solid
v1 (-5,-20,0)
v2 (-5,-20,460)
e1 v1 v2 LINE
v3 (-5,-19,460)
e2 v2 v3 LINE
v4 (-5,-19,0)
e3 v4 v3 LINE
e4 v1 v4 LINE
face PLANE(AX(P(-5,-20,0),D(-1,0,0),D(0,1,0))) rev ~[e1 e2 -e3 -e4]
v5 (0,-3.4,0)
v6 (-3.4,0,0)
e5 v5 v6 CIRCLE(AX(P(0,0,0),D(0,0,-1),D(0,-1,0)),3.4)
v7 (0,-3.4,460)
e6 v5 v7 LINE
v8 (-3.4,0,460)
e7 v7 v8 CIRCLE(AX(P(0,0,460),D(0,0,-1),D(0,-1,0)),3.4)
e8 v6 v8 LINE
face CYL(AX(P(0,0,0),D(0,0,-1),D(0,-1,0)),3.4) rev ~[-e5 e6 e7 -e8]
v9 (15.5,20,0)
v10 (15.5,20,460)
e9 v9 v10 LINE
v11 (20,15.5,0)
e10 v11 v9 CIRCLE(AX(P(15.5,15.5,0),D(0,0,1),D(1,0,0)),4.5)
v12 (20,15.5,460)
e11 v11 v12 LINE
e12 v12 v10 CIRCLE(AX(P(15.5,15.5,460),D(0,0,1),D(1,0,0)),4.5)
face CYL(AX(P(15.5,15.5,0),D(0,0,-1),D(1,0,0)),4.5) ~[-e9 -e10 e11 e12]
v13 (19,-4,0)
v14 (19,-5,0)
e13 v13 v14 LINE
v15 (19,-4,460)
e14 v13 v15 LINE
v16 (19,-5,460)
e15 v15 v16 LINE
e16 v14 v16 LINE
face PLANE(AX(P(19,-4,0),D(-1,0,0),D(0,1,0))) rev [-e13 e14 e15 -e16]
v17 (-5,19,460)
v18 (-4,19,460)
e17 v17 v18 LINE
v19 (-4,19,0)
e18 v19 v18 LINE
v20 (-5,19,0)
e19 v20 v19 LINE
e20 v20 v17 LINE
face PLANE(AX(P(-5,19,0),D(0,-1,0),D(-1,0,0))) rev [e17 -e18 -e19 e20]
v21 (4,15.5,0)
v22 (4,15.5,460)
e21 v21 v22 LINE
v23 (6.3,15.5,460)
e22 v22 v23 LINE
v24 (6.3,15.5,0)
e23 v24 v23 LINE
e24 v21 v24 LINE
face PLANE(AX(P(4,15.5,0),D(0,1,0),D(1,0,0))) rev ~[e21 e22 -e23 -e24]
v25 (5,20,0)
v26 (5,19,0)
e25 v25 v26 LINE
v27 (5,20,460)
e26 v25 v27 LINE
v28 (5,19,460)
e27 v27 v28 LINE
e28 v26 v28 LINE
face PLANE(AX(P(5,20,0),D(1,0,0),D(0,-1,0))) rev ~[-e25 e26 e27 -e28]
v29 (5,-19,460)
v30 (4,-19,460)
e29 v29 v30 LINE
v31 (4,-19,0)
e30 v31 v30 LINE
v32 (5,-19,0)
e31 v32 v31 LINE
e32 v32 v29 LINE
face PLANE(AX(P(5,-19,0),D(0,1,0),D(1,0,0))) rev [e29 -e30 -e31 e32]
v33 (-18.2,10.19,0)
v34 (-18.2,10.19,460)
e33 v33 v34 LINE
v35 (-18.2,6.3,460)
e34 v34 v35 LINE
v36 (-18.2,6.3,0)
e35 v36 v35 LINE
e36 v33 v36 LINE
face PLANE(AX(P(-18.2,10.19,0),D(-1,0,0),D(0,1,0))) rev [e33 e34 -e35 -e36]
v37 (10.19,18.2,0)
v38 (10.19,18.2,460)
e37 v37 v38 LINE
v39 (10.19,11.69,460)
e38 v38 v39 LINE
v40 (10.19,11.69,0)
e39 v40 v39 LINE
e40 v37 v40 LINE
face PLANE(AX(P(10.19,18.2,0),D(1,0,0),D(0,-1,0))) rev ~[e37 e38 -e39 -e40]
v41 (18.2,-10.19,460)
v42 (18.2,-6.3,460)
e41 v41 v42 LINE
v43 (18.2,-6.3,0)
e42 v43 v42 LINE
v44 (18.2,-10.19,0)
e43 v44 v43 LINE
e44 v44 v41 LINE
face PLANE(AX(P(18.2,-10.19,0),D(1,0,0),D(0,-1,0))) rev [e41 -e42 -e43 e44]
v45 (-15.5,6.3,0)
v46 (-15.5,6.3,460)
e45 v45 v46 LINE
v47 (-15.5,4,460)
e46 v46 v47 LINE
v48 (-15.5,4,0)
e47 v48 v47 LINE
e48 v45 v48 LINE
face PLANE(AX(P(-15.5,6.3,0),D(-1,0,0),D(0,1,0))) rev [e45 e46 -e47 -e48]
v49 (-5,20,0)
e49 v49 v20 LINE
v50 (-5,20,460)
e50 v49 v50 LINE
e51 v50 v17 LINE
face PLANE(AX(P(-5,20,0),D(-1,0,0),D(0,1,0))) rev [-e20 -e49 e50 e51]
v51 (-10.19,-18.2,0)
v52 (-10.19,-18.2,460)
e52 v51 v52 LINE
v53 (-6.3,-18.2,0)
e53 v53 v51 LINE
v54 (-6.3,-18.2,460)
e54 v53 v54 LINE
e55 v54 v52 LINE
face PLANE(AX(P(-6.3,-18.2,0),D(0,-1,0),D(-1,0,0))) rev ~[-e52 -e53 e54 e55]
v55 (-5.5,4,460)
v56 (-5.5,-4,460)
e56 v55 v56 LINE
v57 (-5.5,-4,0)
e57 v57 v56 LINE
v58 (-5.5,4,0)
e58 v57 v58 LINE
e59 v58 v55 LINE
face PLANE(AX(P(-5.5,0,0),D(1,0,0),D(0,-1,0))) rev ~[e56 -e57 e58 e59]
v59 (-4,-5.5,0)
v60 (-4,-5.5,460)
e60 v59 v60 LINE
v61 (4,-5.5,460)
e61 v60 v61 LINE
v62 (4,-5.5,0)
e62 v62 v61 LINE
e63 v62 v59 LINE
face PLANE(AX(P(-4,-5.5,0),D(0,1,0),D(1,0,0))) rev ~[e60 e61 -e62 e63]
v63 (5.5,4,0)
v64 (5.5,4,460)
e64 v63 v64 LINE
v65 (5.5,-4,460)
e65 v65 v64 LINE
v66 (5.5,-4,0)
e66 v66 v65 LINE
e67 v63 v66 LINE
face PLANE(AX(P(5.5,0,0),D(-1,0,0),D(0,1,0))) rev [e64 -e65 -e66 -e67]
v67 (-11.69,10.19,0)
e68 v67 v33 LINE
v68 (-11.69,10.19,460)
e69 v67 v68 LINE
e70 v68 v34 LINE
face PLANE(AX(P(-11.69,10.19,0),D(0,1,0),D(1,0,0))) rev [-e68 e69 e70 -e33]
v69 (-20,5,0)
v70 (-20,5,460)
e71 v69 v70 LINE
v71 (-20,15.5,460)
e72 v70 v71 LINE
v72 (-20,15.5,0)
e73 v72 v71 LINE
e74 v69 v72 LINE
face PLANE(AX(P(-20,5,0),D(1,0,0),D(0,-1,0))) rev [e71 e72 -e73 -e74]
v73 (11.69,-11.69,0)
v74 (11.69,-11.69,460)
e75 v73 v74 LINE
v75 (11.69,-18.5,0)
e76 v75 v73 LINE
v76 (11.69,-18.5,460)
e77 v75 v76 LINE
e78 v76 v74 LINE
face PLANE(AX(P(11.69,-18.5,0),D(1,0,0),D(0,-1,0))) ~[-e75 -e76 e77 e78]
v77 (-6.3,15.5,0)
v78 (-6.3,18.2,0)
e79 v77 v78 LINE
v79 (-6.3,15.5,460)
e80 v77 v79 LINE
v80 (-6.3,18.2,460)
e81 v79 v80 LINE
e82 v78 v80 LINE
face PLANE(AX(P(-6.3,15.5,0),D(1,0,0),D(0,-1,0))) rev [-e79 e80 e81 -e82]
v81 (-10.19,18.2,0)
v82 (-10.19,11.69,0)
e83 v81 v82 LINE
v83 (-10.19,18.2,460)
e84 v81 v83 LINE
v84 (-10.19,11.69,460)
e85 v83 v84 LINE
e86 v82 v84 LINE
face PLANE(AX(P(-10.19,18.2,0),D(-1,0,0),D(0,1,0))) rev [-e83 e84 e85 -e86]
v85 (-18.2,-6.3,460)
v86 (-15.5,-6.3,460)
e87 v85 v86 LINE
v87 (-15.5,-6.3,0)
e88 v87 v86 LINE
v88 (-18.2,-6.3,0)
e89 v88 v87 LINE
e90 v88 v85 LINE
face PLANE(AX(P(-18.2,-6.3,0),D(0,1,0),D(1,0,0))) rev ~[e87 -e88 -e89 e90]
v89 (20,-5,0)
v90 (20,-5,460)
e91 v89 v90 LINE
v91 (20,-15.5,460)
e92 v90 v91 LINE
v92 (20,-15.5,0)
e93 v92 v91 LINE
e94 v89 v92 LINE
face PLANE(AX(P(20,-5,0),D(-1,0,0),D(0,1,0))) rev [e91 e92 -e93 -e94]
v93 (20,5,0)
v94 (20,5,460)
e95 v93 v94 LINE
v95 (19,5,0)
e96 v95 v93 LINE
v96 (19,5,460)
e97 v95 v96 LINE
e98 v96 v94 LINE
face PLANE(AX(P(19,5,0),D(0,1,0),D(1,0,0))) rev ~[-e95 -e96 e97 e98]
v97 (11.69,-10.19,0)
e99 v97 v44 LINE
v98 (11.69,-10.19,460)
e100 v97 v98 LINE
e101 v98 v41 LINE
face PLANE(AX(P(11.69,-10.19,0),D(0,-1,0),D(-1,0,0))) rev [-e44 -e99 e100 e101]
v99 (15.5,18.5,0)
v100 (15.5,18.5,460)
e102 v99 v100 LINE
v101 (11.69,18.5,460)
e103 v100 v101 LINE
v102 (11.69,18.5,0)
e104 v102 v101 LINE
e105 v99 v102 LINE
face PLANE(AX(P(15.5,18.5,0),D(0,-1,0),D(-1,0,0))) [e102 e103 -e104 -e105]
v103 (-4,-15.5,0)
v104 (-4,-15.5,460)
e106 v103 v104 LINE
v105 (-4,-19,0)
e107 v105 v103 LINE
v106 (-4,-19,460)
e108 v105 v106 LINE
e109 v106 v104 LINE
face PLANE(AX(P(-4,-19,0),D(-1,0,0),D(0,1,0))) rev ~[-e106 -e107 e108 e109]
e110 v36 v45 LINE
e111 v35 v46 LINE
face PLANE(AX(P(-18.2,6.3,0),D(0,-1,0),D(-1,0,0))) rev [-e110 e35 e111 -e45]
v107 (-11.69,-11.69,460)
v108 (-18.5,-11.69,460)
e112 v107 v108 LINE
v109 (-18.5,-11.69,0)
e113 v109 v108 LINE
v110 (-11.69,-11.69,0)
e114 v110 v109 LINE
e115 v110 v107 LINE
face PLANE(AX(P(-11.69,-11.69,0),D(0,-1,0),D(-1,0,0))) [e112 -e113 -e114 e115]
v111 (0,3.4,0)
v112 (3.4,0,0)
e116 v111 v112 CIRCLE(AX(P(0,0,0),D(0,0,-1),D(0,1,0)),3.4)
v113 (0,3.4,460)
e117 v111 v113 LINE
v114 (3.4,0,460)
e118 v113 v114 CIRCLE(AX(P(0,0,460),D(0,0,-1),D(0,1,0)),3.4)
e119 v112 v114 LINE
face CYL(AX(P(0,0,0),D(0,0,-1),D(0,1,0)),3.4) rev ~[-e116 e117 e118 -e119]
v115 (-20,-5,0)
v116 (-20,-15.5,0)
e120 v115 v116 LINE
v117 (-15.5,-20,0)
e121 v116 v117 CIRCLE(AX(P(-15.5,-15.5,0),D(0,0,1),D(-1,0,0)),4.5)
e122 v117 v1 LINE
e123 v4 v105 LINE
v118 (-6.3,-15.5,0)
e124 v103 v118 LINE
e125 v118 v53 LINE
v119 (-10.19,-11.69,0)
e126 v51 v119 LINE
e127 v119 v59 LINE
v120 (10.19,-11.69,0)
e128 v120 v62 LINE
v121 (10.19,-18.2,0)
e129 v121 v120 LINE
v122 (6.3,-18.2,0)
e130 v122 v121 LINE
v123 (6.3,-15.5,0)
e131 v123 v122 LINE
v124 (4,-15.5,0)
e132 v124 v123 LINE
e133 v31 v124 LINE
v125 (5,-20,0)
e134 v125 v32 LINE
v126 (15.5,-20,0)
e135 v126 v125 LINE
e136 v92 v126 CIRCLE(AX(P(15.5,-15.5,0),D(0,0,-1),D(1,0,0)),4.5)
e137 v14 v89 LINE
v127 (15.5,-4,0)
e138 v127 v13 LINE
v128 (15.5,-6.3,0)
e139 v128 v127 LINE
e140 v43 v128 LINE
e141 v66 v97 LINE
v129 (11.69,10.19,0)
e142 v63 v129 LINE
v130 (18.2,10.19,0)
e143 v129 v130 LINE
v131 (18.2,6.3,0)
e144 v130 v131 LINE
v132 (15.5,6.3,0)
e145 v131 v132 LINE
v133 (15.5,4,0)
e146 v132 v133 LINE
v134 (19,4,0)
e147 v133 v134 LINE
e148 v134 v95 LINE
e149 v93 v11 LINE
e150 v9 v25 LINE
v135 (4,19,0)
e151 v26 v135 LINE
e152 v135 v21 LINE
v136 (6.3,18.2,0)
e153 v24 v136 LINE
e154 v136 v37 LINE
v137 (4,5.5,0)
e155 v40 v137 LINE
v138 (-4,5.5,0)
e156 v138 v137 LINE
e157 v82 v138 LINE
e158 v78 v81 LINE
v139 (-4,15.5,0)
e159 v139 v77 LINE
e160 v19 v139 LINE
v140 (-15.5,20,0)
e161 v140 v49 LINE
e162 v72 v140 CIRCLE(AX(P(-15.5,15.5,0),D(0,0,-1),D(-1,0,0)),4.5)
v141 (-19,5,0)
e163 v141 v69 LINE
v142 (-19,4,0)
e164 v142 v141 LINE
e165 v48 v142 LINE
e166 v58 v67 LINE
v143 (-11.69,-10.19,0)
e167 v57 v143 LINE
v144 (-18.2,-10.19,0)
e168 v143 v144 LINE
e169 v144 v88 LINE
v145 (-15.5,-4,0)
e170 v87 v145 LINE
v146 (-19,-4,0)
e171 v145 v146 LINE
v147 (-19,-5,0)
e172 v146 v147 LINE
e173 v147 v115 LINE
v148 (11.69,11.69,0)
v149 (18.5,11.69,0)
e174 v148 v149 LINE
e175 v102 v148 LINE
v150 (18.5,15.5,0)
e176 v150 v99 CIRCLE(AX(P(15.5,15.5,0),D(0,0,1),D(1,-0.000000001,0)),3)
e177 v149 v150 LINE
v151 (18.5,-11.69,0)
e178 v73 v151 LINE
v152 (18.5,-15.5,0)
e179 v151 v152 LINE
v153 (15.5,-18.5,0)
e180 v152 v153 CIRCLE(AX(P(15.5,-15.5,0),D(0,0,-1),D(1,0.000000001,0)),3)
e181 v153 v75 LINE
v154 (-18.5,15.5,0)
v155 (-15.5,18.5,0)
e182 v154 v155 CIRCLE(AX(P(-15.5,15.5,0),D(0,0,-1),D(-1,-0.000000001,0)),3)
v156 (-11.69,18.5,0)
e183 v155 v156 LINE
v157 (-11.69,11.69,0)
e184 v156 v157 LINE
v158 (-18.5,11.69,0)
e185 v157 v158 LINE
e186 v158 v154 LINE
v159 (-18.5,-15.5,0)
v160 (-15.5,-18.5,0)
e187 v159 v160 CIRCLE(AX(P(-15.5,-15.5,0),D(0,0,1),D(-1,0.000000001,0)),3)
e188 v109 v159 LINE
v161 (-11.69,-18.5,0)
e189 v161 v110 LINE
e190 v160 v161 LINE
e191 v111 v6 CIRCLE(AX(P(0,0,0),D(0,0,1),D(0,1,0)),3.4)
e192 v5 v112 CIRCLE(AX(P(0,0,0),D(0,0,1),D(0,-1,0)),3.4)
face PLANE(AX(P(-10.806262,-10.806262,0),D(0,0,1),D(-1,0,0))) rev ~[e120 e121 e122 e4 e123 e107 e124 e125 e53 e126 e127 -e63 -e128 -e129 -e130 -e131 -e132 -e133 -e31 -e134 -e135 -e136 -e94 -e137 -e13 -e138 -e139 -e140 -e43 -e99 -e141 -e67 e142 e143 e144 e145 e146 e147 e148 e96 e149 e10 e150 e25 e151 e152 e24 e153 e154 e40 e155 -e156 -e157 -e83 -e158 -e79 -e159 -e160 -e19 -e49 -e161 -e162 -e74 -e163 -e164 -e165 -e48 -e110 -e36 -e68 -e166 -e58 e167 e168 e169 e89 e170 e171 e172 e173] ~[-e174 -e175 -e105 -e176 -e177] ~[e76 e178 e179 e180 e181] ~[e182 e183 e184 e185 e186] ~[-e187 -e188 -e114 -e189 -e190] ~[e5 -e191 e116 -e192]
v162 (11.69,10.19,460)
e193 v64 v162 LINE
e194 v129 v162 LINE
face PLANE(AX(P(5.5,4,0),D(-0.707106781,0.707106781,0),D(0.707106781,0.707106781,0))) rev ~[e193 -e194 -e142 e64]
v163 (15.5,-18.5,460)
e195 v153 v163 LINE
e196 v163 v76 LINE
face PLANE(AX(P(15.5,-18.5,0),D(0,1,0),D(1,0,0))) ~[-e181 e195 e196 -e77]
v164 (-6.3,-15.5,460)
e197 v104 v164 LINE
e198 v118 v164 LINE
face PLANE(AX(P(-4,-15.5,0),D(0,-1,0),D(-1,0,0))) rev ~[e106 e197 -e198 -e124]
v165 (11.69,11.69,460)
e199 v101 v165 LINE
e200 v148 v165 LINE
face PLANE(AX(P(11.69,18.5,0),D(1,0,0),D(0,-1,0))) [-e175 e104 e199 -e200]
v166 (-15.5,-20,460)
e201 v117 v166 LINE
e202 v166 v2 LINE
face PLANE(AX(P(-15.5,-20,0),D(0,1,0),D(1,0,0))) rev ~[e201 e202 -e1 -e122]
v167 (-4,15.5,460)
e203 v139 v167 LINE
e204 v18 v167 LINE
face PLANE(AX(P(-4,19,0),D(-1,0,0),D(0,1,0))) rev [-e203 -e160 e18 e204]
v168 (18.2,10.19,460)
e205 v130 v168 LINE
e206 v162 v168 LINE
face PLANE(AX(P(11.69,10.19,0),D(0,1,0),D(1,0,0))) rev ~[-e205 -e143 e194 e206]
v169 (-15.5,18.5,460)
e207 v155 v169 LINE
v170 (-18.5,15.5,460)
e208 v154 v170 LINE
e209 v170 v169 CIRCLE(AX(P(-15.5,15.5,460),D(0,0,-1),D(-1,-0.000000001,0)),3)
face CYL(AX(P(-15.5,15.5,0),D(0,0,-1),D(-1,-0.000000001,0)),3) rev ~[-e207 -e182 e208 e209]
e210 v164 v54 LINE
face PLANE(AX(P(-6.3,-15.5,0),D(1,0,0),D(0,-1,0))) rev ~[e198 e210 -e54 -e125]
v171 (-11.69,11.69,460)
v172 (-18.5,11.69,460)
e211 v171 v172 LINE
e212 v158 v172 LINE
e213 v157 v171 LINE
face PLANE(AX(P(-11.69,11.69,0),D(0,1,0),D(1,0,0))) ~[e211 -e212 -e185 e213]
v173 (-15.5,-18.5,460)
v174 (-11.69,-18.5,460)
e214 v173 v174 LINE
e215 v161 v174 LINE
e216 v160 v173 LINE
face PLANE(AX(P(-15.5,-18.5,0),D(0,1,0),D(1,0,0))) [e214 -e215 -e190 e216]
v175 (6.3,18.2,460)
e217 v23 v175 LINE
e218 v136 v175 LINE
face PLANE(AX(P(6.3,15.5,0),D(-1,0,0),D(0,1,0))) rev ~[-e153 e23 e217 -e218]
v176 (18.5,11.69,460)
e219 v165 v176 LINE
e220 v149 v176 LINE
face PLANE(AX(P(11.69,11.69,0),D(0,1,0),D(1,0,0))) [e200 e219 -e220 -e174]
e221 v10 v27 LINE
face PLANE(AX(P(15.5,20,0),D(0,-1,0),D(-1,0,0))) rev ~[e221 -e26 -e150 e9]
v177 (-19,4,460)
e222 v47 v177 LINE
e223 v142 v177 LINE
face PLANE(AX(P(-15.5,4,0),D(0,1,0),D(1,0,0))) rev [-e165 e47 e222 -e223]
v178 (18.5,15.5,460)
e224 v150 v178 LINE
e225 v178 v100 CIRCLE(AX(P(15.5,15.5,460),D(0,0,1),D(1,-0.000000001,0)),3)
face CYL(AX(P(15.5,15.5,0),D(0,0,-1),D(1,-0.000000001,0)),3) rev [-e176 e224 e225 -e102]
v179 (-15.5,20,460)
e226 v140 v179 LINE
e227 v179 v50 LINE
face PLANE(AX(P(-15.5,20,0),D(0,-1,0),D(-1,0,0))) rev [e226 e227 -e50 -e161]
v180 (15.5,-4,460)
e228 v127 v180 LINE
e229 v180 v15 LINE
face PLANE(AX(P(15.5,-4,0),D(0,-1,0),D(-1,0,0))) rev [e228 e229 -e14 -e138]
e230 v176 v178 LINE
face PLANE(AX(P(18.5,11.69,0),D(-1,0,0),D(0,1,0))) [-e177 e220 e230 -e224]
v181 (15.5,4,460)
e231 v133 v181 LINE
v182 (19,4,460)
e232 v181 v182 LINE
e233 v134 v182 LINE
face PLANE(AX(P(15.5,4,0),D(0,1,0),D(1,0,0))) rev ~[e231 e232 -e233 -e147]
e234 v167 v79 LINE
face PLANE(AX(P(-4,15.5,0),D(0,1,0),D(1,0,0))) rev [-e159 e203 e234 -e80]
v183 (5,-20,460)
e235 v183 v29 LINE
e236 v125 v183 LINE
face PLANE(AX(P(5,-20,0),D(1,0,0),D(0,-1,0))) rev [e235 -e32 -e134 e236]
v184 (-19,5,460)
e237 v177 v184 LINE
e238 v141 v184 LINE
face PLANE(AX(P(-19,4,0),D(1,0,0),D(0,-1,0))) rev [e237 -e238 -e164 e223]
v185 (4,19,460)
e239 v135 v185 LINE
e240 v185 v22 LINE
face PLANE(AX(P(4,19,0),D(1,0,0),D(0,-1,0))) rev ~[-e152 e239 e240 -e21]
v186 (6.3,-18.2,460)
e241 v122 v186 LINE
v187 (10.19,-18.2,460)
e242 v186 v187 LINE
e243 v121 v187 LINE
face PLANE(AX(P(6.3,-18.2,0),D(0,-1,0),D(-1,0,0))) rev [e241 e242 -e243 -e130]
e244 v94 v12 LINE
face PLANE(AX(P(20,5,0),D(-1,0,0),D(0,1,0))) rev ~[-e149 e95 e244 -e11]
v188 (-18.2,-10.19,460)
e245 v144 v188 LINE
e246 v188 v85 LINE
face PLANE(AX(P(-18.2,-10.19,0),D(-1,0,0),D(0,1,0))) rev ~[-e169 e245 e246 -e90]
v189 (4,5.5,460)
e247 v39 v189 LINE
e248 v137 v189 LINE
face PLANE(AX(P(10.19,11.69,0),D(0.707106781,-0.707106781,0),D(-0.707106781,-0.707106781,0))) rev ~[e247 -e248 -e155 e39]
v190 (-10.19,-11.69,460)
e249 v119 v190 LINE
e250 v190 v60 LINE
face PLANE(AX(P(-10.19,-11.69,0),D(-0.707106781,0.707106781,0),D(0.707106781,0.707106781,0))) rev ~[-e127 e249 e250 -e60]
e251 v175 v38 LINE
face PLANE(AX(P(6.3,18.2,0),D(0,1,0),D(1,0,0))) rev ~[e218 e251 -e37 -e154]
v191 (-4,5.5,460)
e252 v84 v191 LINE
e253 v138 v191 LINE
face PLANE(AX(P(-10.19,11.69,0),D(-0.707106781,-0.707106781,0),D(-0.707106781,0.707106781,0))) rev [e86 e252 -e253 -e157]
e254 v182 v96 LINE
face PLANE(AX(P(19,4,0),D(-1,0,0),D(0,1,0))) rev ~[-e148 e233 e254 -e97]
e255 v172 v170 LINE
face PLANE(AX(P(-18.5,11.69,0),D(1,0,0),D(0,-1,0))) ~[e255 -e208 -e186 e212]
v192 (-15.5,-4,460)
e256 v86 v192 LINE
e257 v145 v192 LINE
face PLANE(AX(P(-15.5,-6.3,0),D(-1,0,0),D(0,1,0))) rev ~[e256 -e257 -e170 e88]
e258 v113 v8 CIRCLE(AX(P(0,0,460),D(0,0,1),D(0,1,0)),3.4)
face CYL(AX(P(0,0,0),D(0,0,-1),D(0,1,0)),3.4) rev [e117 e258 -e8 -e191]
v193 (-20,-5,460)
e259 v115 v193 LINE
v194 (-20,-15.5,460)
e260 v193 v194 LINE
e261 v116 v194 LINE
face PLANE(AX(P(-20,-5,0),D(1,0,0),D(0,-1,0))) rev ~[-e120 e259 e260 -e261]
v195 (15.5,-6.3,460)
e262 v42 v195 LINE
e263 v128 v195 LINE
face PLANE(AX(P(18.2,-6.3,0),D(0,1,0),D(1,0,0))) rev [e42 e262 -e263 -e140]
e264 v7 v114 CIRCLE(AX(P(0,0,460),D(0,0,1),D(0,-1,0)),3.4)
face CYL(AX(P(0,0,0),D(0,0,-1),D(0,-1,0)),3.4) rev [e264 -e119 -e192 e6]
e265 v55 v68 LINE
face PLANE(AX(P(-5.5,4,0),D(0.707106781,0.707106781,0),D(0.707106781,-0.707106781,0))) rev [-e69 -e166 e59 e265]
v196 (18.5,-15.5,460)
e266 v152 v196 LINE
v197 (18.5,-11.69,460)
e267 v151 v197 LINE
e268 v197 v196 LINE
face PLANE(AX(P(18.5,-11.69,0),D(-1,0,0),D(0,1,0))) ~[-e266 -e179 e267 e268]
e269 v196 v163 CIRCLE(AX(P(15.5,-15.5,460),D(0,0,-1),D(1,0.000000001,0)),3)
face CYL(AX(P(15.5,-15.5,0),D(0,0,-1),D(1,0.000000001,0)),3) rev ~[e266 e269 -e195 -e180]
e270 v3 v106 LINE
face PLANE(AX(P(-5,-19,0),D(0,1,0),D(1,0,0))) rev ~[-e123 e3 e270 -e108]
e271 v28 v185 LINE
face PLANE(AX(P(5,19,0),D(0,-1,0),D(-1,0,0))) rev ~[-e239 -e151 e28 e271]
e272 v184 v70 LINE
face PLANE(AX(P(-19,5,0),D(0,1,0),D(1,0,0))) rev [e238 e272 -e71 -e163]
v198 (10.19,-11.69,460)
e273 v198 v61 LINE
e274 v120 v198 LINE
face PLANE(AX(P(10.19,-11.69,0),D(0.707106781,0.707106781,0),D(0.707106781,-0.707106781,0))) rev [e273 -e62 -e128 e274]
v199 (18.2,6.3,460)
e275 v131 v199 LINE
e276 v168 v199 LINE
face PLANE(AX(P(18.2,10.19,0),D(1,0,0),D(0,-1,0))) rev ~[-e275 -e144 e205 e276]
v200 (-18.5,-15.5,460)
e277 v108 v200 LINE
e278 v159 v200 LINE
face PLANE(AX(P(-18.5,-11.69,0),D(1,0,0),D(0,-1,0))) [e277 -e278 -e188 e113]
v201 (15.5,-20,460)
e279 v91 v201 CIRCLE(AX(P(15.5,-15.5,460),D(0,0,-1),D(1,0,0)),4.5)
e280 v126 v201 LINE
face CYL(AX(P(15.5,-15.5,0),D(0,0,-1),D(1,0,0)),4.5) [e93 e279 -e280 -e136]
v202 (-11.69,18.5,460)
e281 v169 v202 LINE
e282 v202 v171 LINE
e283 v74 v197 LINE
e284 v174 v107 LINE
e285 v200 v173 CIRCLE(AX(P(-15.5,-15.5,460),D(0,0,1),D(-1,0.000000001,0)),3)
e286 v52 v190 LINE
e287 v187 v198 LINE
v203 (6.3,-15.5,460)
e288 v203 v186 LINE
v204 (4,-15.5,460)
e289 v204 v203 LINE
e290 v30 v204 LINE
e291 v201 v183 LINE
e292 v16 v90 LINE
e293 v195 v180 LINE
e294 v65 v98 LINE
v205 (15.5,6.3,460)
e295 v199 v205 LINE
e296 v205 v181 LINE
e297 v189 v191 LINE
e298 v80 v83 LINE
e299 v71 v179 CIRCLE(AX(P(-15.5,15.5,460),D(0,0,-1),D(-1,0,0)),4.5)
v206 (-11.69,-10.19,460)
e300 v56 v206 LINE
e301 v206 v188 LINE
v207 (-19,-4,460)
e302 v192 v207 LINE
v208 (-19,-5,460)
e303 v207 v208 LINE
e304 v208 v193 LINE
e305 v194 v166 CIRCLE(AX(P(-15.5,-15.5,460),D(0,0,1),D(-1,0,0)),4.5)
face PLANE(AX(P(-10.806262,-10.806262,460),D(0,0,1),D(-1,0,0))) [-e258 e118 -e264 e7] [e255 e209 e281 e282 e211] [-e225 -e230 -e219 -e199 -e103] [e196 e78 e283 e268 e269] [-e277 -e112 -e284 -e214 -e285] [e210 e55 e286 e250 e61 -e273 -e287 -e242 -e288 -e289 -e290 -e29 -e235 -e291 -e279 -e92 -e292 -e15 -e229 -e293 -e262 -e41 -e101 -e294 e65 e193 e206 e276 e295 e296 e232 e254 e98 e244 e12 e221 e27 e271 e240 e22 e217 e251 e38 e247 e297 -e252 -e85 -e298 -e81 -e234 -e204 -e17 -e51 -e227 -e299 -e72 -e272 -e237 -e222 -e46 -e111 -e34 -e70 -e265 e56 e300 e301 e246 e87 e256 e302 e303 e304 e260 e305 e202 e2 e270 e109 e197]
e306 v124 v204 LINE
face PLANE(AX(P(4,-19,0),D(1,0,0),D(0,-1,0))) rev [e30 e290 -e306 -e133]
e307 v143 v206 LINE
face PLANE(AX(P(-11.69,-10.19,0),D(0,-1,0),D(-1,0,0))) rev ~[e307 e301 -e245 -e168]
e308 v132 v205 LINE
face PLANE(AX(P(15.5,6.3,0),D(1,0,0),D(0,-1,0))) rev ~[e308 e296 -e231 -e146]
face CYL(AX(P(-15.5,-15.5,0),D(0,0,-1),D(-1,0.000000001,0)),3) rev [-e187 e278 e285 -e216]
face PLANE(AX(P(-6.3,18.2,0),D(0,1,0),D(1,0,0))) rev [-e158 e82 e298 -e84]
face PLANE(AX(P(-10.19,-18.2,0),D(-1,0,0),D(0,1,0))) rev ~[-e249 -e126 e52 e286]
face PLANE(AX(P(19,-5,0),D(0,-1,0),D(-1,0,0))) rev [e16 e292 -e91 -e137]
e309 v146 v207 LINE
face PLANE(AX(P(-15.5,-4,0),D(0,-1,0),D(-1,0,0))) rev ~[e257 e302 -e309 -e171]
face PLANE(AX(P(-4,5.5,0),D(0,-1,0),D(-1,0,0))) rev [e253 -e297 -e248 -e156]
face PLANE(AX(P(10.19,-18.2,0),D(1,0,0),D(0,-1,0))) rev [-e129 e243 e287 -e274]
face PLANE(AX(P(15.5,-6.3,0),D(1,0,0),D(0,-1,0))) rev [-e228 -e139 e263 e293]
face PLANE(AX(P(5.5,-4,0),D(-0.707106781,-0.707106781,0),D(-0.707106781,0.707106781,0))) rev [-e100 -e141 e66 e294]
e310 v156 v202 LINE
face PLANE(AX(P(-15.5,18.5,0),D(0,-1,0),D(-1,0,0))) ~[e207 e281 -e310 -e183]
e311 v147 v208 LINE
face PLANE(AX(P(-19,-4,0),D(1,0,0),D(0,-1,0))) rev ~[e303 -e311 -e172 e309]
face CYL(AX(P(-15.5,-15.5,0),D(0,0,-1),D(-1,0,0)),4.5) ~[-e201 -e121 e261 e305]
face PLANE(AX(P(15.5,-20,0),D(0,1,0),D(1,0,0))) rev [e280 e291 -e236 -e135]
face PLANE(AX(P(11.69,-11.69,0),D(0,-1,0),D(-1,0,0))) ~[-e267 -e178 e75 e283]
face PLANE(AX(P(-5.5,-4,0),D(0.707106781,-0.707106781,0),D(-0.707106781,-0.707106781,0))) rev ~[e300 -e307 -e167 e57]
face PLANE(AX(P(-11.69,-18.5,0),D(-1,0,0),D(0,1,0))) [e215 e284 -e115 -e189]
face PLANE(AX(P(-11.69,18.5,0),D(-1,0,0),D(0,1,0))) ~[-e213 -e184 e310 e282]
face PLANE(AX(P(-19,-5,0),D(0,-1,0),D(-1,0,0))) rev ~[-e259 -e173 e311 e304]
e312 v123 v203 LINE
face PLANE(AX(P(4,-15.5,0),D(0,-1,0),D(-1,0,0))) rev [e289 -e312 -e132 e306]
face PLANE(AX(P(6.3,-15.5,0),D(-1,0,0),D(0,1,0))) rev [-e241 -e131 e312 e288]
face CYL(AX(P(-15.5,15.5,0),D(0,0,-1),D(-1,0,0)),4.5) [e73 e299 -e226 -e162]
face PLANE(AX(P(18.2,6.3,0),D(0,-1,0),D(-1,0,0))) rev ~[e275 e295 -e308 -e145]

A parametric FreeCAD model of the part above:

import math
import FreeCAD as App
import Part
import Sketcher

V = App.Vector

doc = App.newDocument("Part")
body = doc.addObject("PartDesign::Body", "Body")

# Sketch on XY plane
sketch1 = body.newObject("Sketcher::SketchObject", "Sketch")
sketch1.AttachmentSupport = (doc.getObject("XY_Plane"), [""])
sketch1.MapMode = "FlatFace"
sketch1.addGeometry(Part.LineSegment(V(3.4, 0, 0), V(5.5, 0, 0)), False)
sketch1.addGeometry(Part.LineSegment(V(5.5, 0, 0), V(5.5, 4, 0)), False)
sketch1.addGeometry(Part.LineSegment(V(5.5, 4, 0), V(11.69, 10.19, 0)), False)
sketch1.addGeometry(Part.LineSegment(V(11.69, 10.19, 0), V(18.2, 10.19, 0)), False)
sketch1.addGeometry(Part.LineSegment(V(18.2, 10.19, 0), V(18.2, 6.3, 0)), False)
sketch1.addGeometry(Part.LineSegment(V(18.2, 6.3, 0), V(15.5, 6.3, 0)), False)
sketch1.addGeometry(Part.LineSegment(V(15.5, 6.3, 0), V(15.5, 4, 0)), False)
sketch1.addGeometry(Part.LineSegment(V(15.5, 4, 0), V(19, 4, 0)), False)
sketch1.addGeometry(Part.LineSegment(V(19, 4, 0), V(19, 5, 0)), False)
sketch1.addGeometry(Part.LineSegment(V(19, 5, 0), V(20, 5, 0)), False)
sketch1.addGeometry(Part.LineSegment(V(20, 5, 0), V(20, 15.5, 0)), False)
sketch1.addGeometry(Part.ArcOfCircle(Part.Circle(V(15.5, 15.5, 0), V(0, 0, 1), 4.5), math.radians(0), math.radians(90)), False)
sketch1.addGeometry(Part.LineSegment(V(15.5, 20, 0), V(5, 20, 0)), False)
sketch1.addGeometry(Part.LineSegment(V(5, 20, 0), V(5, 19, 0)), False)
sketch1.addGeometry(Part.LineSegment(V(5, 19, 0), V(4, 19, 0)), False)
sketch1.addGeometry(Part.LineSegment(V(4, 19, 0), V(4, 15.5, 0)), False)
sketch1.addGeometry(Part.LineSegment(V(4, 15.5, 0), V(6.3, 15.5, 0)), False)
sketch1.addGeometry(Part.LineSegment(V(6.3, 15.5, 0), V(6.3, 18.2, 0)), False)
sketch1.addGeometry(Part.LineSegment(V(6.3, 18.2, 0), V(10.19, 18.2, 0)), False)
sketch1.addGeometry(Part.LineSegment(V(10.19, 18.2, 0), V(10.19, 11.69, 0)), False)
sketch1.addGeometry(Part.LineSegment(V(10.19, 11.69, 0), V(4, 5.5, 0)), False)
sketch1.addGeometry(Part.LineSegment(V(4, 5.5, 0), V(0, 5.5, 0)), False)
sketch1.addGeometry(Part.LineSegment(V(0, 5.5, 0), V(0, 3.4, 0)), False)
sketch1.addGeometry(Part.ArcOfCircle(Part.Circle(V(0, 0, 0), V(0, 0, 1), 3.4), math.radians(0), math.radians(90)), False)
sketch1.addGeometry(Part.LineSegment(V(18.5, 15.5, 0), V(18.5, 11.69, 0)), False)
sketch1.addGeometry(Part.LineSegment(V(18.5, 11.69, 0), V(11.69, 11.69, 0)), False)
sketch1.addGeometry(Part.LineSegment(V(11.69, 11.69, 0), V(11.69, 18.5, 0)), False)
sketch1.addGeometry(Part.LineSegment(V(11.69, 18.5, 0), V(15.5, 18.5, 0)), False)
sketch1.addGeometry(Part.ArcOfCircle(Part.Circle(V(15.5, 15.5, 0), V(0, 0, 1), 3), math.radians(0), math.radians(90)), False)
sketch1.addConstraint(Sketcher.Constraint("Coincident", 0, 2, 1, 1))
sketch1.addConstraint(Sketcher.Constraint("Coincident", 1, 2, 2, 1))
sketch1.addConstraint(Sketcher.Constraint("Coincident", 2, 2, 3, 1))
sketch1.addConstraint(Sketcher.Constraint("Coincident", 3, 2, 4, 1))
sketch1.addConstraint(Sketcher.Constraint("Coincident", 4, 2, 5, 1))
sketch1.addConstraint(Sketcher.Constraint("Coincident", 5, 2, 6, 1))
sketch1.addConstraint(Sketcher.Constraint("Coincident", 6, 2, 7, 1))
sketch1.addConstraint(Sketcher.Constraint("Coincident", 7, 2, 8, 1))
sketch1.addConstraint(Sketcher.Constraint("Coincident", 8, 2, 9, 1))
sketch1.addConstraint(Sketcher.Constraint("Coincident", 9, 2, 10, 1))
sketch1.addConstraint(Sketcher.Constraint("Tangent", 10, 2, 11, 1))
sketch1.addConstraint(Sketcher.Constraint("Tangent", 11, 2, 12, 1))
sketch1.addConstraint(Sketcher.Constraint("Coincident", 12, 2, 13, 1))
sketch1.addConstraint(Sketcher.Constraint("Coincident", 13, 2, 14, 1))
sketch1.addConstraint(Sketcher.Constraint("Coincident", 14, 2, 15, 1))
sketch1.addConstraint(Sketcher.Constraint("Coincident", 15, 2, 16, 1))
sketch1.addConstraint(Sketcher.Constraint("Coincident", 16, 2, 17, 1))
sketch1.addConstraint(Sketcher.Constraint("Coincident", 17, 2, 18, 1))
sketch1.addConstraint(Sketcher.Constraint("Coincident", 18, 2, 19, 1))
sketch1.addConstraint(Sketcher.Constraint("Coincident", 19, 2, 20, 1))
sketch1.addConstraint(Sketcher.Constraint("Coincident", 20, 2, 21, 1))
sketch1.addConstraint(Sketcher.Constraint("Coincident", 21, 2, 22, 1))
sketch1.addConstraint(Sketcher.Constraint("Coincident", 22, 2, 23, 2))
sketch1.addConstraint(Sketcher.Constraint("Coincident", 23, 1, 0, 1))
sketch1.addConstraint(Sketcher.Constraint("Coincident", 24, 2, 25, 1))
sketch1.addConstraint(Sketcher.Constraint("Coincident", 25, 2, 26, 1))
sketch1.addConstraint(Sketcher.Constraint("Coincident", 26, 2, 27, 1))
sketch1.addConstraint(Sketcher.Constraint("Tangent", 27, 2, 28, 2))
sketch1.addConstraint(Sketcher.Constraint("Tangent", 28, 1, 24, 1))
sketch1.addConstraint(Sketcher.Constraint("Horizontal", 0))
sketch1.addConstraint(Sketcher.Constraint("Vertical", 1))
sketch1.addConstraint(Sketcher.Constraint("Horizontal", 3))
sketch1.addConstraint(Sketcher.Constraint("Vertical", 4))
sketch1.addConstraint(Sketcher.Constraint("Horizontal", 5))
sketch1.addConstraint(Sketcher.Constraint("Vertical", 6))
sketch1.addConstraint(Sketcher.Constraint("Horizontal", 7))
sketch1.addConstraint(Sketcher.Constraint("Vertical", 8))
sketch1.addConstraint(Sketcher.Constraint("Horizontal", 9))
sketch1.addConstraint(Sketcher.Constraint("Vertical", 10))
sketch1.addConstraint(Sketcher.Constraint("Horizontal", 12))
sketch1.addConstraint(Sketcher.Constraint("Vertical", 13))
sketch1.addConstraint(Sketcher.Constraint("Horizontal", 14))
sketch1.addConstraint(Sketcher.Constraint("Vertical", 15))
sketch1.addConstraint(Sketcher.Constraint("Horizontal", 16))
sketch1.addConstraint(Sketcher.Constraint("Vertical", 17))
sketch1.addConstraint(Sketcher.Constraint("Horizontal", 18))
sketch1.addConstraint(Sketcher.Constraint("Vertical", 19))
sketch1.addConstraint(Sketcher.Constraint("Horizontal", 21))
sketch1.addConstraint(Sketcher.Constraint("Vertical", 22))
sketch1.addConstraint(Sketcher.Constraint("Vertical", 24))
sketch1.addConstraint(Sketcher.Constraint("Horizontal", 25))
sketch1.addConstraint(Sketcher.Constraint("Vertical", 26))
sketch1.addConstraint(Sketcher.Constraint("Horizontal", 27))
sketch1.addConstraint(Sketcher.Constraint("Coincident", 23, 3, -1, 1))
sketch1.addConstraint(Sketcher.Constraint("Coincident", 28, 3, 11, 3))
sketch1.addConstraint(Sketcher.Constraint("PointOnObject", 0, 2, -1))
sketch1.addConstraint(Sketcher.Constraint("PointOnObject", 21, 2, -2))
sketch1.addConstraint(Sketcher.Constraint("Parallel", 2, 20))
sketch1.addConstraint(Sketcher.Constraint("Horizontal", 1, 2, 6, 2))
sketch1.addConstraint(Sketcher.Constraint("Horizontal", 10, 2, 15, 2))
sketch1.addConstraint(Sketcher.Constraint("Horizontal", 19, 2, 24, 2))
sketch1.addConstraint(Sketcher.Constraint("Vertical", 28, 3, 5, 2))
sketch1.addConstraint(Sketcher.Constraint("Vertical", 15, 2, 20, 2))
sketch1.addConstraint(Sketcher.Constraint("Vertical", 2, 2, 25, 2))
sketch1.addConstraint(Sketcher.Constraint("Equal", 9, 14))
sketch1.addConstraint(Sketcher.Constraint("Equal", 21, 1))
sketch1.addConstraint(Sketcher.Constraint("Equal", 18, 4))
sketch1.addConstraint(Sketcher.Constraint("Equal", 16, 6))
sketch1.addConstraint(Sketcher.Constraint("Equal", 14, 8))
sketch1.addConstraint(Sketcher.Constraint("Equal", 12, 10))
sketch1.addConstraint(Sketcher.Constraint("Equal", 8, 13))
sketch1.addConstraint(Sketcher.Constraint("Equal", 5, 17))
sketch1.addConstraint(Sketcher.Constraint("Equal", 3, 19))
sketch1.addConstraint(Sketcher.Constraint("Equal", 0, 22))
sketch1.addConstraint(Sketcher.Constraint("Radius", 28, 3.0))
sketch1.addConstraint(Sketcher.Constraint("Radius", 11, 4.5))
sketch1.addConstraint(Sketcher.Constraint("Radius", 23, 3.4))
sketch1.addConstraint(Sketcher.Constraint("DistanceX", 9, 1, 9, 2, 1.0))
sketch1.addConstraint(Sketcher.Constraint("DistanceX", 21, 2, 21, 1, 4.0))
sketch1.addConstraint(Sketcher.Constraint("DistanceX", 0, 1, 0, 2, 2.1))
sketch1.addConstraint(Sketcher.Constraint("DistanceX", 5, 2, 5, 1, 2.7))
sketch1.addConstraint(Sketcher.Constraint("DistanceX", 12, 2, 12, 1, 10.5))
sketch1.addConstraint(Sketcher.Constraint("DistanceX", 16, 1, 16, 2, 2.3))
sketch1.addConstraint(Sketcher.Constraint("DistanceX", 3, 1, 3, 2, 6.51))
pad1 = body.newObject("PartDesign::Pad", "Pad")
pad1.Profile = sketch1
pad1.Length = 460
doc.recompute()

mirrored = body.newObject("PartDesign::Mirrored", "Mirrored")
mirrored.Originals = [pad1]
mirrored.MirrorPlane = (doc.getObject("XZ_Plane"), [""])
body.Tip = mirrored
doc.recompute()

mirrored2 = body.newObject("PartDesign::Mirrored", "Mirrored001")
mirrored2.Originals = [pad1]
mirrored2.MirrorPlane = (doc.getObject("YZ_Plane"), [""])
body.Tip = mirrored2

# Sketch on XY plane
sketch2 = body.newObject("Sketcher::SketchObject", "Sketch001")
sketch2.AttachmentSupport = (doc.getObject("XY_Plane"), [""])
sketch2.MapMode = "FlatFace"
sketch2.addGeometry(Part.LineSegment(V(-3.4, 0, 0), V(-5.5, 0, 0)), False)
sketch2.addGeometry(Part.LineSegment(V(-5.5, 0, 0), V(-5.5, -4, 0)), False)
sketch2.addGeometry(Part.LineSegment(V(-5.5, -4, 0), V(-11.69, -10.19, 0)), False)
sketch2.addGeometry(Part.LineSegment(V(-11.69, -10.19, 0), V(-18.2, -10.19, 0)), False)
sketch2.addGeometry(Part.LineSegment(V(-18.2, -10.19, 0), V(-18.2, -6.3, 0)), False)
sketch2.addGeometry(Part.LineSegment(V(-18.2, -6.3, 0), V(-15.5, -6.3, 0)), False)
sketch2.addGeometry(Part.LineSegment(V(-15.5, -6.3, 0), V(-15.5, -4, 0)), False)
sketch2.addGeometry(Part.LineSegment(V(-15.5, -4, 0), V(-19, -4, 0)), False)
sketch2.addGeometry(Part.LineSegment(V(-19, -4, 0), V(-19, -5, 0)), False)
sketch2.addGeometry(Part.LineSegment(V(-19, -5, 0), V(-20, -5, 0)), False)
sketch2.addGeometry(Part.LineSegment(V(-20, -5, 0), V(-20, -15.5, 0)), False)
sketch2.addGeometry(Part.ArcOfCircle(Part.Circle(V(-15.5, -15.5, 0), V(0, 0, 1), 4.5), math.radians(-180), math.radians(-90)), False)
sketch2.addGeometry(Part.LineSegment(V(-15.5, -20, 0), V(-5, -20, 0)), False)
sketch2.addGeometry(Part.LineSegment(V(-5, -20, 0), V(-5, -19, 0)), False)
sketch2.addGeometry(Part.LineSegment(V(-5, -19, 0), V(-4, -19, 0)), False)
sketch2.addGeometry(Part.LineSegment(V(-4, -19, 0), V(-4, -15.5, 0)), False)
sketch2.addGeometry(Part.LineSegment(V(-4, -15.5, 0), V(-6.3, -15.5, 0)), False)
sketch2.addGeometry(Part.LineSegment(V(-6.3, -15.5, 0), V(-6.3, -18.2, 0)), False)
sketch2.addGeometry(Part.LineSegment(V(-6.3, -18.2, 0), V(-10.19, -18.2, 0)), False)
sketch2.addGeometry(Part.LineSegment(V(-10.19, -18.2, 0), V(-10.19, -11.69, 0)), False)
sketch2.addGeometry(Part.LineSegment(V(-10.19, -11.69, 0), V(-4, -5.5, 0)), False)
sketch2.addGeometry(Part.LineSegment(V(-4, -5.5, 0), V(0, -5.5, 0)), False)
sketch2.addGeometry(Part.LineSegment(V(0, -5.5, 0), V(0, -3.4, 0)), False)
sketch2.addGeometry(Part.ArcOfCircle(Part.Circle(V(0, 0, 0), V(0, 0, 1), 3.4), math.radians(180), math.radians(270)), False)
sketch2.addGeometry(Part.LineSegment(V(-18.5, -15.5, 0), V(-18.5, -11.69, 0)), False)
sketch2.addGeometry(Part.LineSegment(V(-18.5, -11.69, 0), V(-11.69, -11.69, 0)), False)
sketch2.addGeometry(Part.LineSegment(V(-11.69, -11.69, 0), V(-11.69, -18.5, 0)), False)
sketch2.addGeometry(Part.LineSegment(V(-11.69, -18.5, 0), V(-15.5, -18.5, 0)), False)
sketch2.addGeometry(Part.ArcOfCircle(Part.Circle(V(-15.5, -15.5, 0), V(0, 0, 1), 3), math.radians(180), math.radians(270)), False)
sketch2.addConstraint(Sketcher.Constraint("Coincident", 0, 2, 1, 1))
sketch2.addConstraint(Sketcher.Constraint("Coincident", 1, 2, 2, 1))
sketch2.addConstraint(Sketcher.Constraint("Coincident", 2, 2, 3, 1))
sketch2.addConstraint(Sketcher.Constraint("Coincident", 3, 2, 4, 1))
sketch2.addConstraint(Sketcher.Constraint("Coincident", 4, 2, 5, 1))
sketch2.addConstraint(Sketcher.Constraint("Coincident", 5, 2, 6, 1))
sketch2.addConstraint(Sketcher.Constraint("Coincident", 6, 2, 7, 1))
sketch2.addConstraint(Sketcher.Constraint("Coincident", 7, 2, 8, 1))
sketch2.addConstraint(Sketcher.Constraint("Coincident", 8, 2, 9, 1))
sketch2.addConstraint(Sketcher.Constraint("Coincident", 9, 2, 10, 1))
sketch2.addConstraint(Sketcher.Constraint("Tangent", 10, 2, 11, 1))
sketch2.addConstraint(Sketcher.Constraint("Tangent", 11, 2, 12, 1))
sketch2.addConstraint(Sketcher.Constraint("Coincident", 12, 2, 13, 1))
sketch2.addConstraint(Sketcher.Constraint("Coincident", 13, 2, 14, 1))
sketch2.addConstraint(Sketcher.Constraint("Coincident", 14, 2, 15, 1))
sketch2.addConstraint(Sketcher.Constraint("Coincident", 15, 2, 16, 1))
sketch2.addConstraint(Sketcher.Constraint("Coincident", 16, 2, 17, 1))
sketch2.addConstraint(Sketcher.Constraint("Coincident", 17, 2, 18, 1))
sketch2.addConstraint(Sketcher.Constraint("Coincident", 18, 2, 19, 1))
sketch2.addConstraint(Sketcher.Constraint("Coincident", 19, 2, 20, 1))
sketch2.addConstraint(Sketcher.Constraint("Coincident", 20, 2, 21, 1))
sketch2.addConstraint(Sketcher.Constraint("Coincident", 21, 2, 22, 1))
sketch2.addConstraint(Sketcher.Constraint("Coincident", 22, 2, 23, 2))
sketch2.addConstraint(Sketcher.Constraint("Coincident", 23, 1, 0, 1))
sketch2.addConstraint(Sketcher.Constraint("Coincident", 24, 2, 25, 1))
sketch2.addConstraint(Sketcher.Constraint("Coincident", 25, 2, 26, 1))
sketch2.addConstraint(Sketcher.Constraint("Coincident", 26, 2, 27, 1))
sketch2.addConstraint(Sketcher.Constraint("Tangent", 27, 2, 28, 2))
sketch2.addConstraint(Sketcher.Constraint("Tangent", 28, 1, 24, 1))
sketch2.addConstraint(Sketcher.Constraint("Horizontal", 0))
sketch2.addConstraint(Sketcher.Constraint("Vertical", 1))
sketch2.addConstraint(Sketcher.Constraint("Horizontal", 3))
sketch2.addConstraint(Sketcher.Constraint("Vertical", 4))
sketch2.addConstraint(Sketcher.Constraint("Horizontal", 5))
sketch2.addConstraint(Sketcher.Constraint("Vertical", 6))
sketch2.addConstraint(Sketcher.Constraint("Horizontal", 7))
sketch2.addConstraint(Sketcher.Constraint("Vertical", 8))
sketch2.addConstraint(Sketcher.Constraint("Horizontal", 9))
sketch2.addConstraint(Sketcher.Constraint("Vertical", 10))
sketch2.addConstraint(Sketcher.Constraint("Horizontal", 12))
sketch2.addConstraint(Sketcher.Constraint("Vertical", 13))
sketch2.addConstraint(Sketcher.Constraint("Horizontal", 14))
sketch2.addConstraint(Sketcher.Constraint("Vertical", 15))
sketch2.addConstraint(Sketcher.Constraint("Horizontal", 16))
sketch2.addConstraint(Sketcher.Constraint("Vertical", 17))
sketch2.addConstraint(Sketcher.Constraint("Horizontal", 18))
sketch2.addConstraint(Sketcher.Constraint("Vertical", 19))
sketch2.addConstraint(Sketcher.Constraint("Horizontal", 21))
sketch2.addConstraint(Sketcher.Constraint("Vertical", 22))
sketch2.addConstraint(Sketcher.Constraint("Vertical", 24))
sketch2.addConstraint(Sketcher.Constraint("Horizontal", 25))
sketch2.addConstraint(Sketcher.Constraint("Vertical", 26))
sketch2.addConstraint(Sketcher.Constraint("Horizontal", 27))
sketch2.addConstraint(Sketcher.Constraint("Coincident", 23, 3, -1, 1))
sketch2.addConstraint(Sketcher.Constraint("Coincident", 28, 3, 11, 3))
sketch2.addConstraint(Sketcher.Constraint("PointOnObject", 0, 2, -1))
sketch2.addConstraint(Sketcher.Constraint("PointOnObject", 21, 2, -2))
sketch2.addConstraint(Sketcher.Constraint("Parallel", 2, 20))
sketch2.addConstraint(Sketcher.Constraint("Horizontal", 1, 2, 6, 2))
sketch2.addConstraint(Sketcher.Constraint("Horizontal", 10, 2, 15, 2))
sketch2.addConstraint(Sketcher.Constraint("Horizontal", 19, 2, 24, 2))
sketch2.addConstraint(Sketcher.Constraint("Vertical", 28, 3, 5, 2))
sketch2.addConstraint(Sketcher.Constraint("Vertical", 15, 2, 20, 2))
sketch2.addConstraint(Sketcher.Constraint("Vertical", 2, 2, 25, 2))
sketch2.addConstraint(Sketcher.Constraint("Equal", 9, 14))
sketch2.addConstraint(Sketcher.Constraint("Equal", 21, 1))
sketch2.addConstraint(Sketcher.Constraint("Equal", 18, 4))
sketch2.addConstraint(Sketcher.Constraint("Equal", 16, 6))
sketch2.addConstraint(Sketcher.Constraint("Equal", 14, 8))
sketch2.addConstraint(Sketcher.Constraint("Equal", 12, 10))
sketch2.addConstraint(Sketcher.Constraint("Equal", 8, 13))
sketch2.addConstraint(Sketcher.Constraint("Equal", 5, 17))
sketch2.addConstraint(Sketcher.Constraint("Equal", 3, 19))
sketch2.addConstraint(Sketcher.Constraint("Equal", 0, 22))
sketch2.addConstraint(Sketcher.Constraint("Radius", 28, 3.0))
sketch2.addConstraint(Sketcher.Constraint("Radius", 11, 4.5))
sketch2.addConstraint(Sketcher.Constraint("Radius", 23, 3.4))
sketch2.addConstraint(Sketcher.Constraint("DistanceX", 9, 2, 9, 1, 1.0))
sketch2.addConstraint(Sketcher.Constraint("DistanceX", 21, 1, 21, 2, 4.0))
sketch2.addConstraint(Sketcher.Constraint("DistanceX", 0, 2, 0, 1, 2.1))
sketch2.addConstraint(Sketcher.Constraint("DistanceX", 5, 1, 5, 2, 2.7))
sketch2.addConstraint(Sketcher.Constraint("DistanceX", 12, 1, 12, 2, 10.5))
sketch2.addConstraint(Sketcher.Constraint("DistanceX", 16, 2, 16, 1, 2.3))
sketch2.addConstraint(Sketcher.Constraint("DistanceX", 3, 2, 3, 1, 6.51))
pad2 = body.newObject("PartDesign::Pad", "Pad001")
pad2.Profile = sketch2
pad2.Length = 460

# Sketch on XY plane
sketch3 = body.newObject("Sketcher::SketchObject", "Sketch002")
sketch3.AttachmentSupport = (doc.getObject("XY_Plane"), [""])
sketch3.MapMode = "FlatFace"
sketch3.addGeometry(Part.LineSegment(V(5.5, 0, 0), V(3.4, 0, 0)), False)
sketch3.addGeometry(Part.ArcOfCircle(Part.Circle(V(0, 0, 0), V(0, 0, 1), 3.4), math.radians(-90), math.radians(0)), False)
sketch3.addGeometry(Part.LineSegment(V(0, -3.4, 0), V(0, -5.5, 0)), False)
sketch3.addGeometry(Part.LineSegment(V(0, -5.5, 0), V(4, -5.5, 0)), False)
sketch3.addGeometry(Part.LineSegment(V(4, -5.5, 0), V(10.19, -11.69, 0)), False)
sketch3.addGeometry(Part.LineSegment(V(10.19, -11.69, 0), V(10.19, -18.2, 0)), False)
sketch3.addGeometry(Part.LineSegment(V(10.19, -18.2, 0), V(6.3, -18.2, 0)), False)
sketch3.addGeometry(Part.LineSegment(V(6.3, -18.2, 0), V(6.3, -15.5, 0)), False)
sketch3.addGeometry(Part.LineSegment(V(6.3, -15.5, 0), V(4, -15.5, 0)), False)
sketch3.addGeometry(Part.LineSegment(V(4, -15.5, 0), V(4, -19, 0)), False)
sketch3.addGeometry(Part.LineSegment(V(4, -19, 0), V(5, -19, 0)), False)
sketch3.addGeometry(Part.LineSegment(V(5, -19, 0), V(5, -20, 0)), False)
sketch3.addGeometry(Part.LineSegment(V(5, -20, 0), V(15.5, -20, 0)), False)
sketch3.addGeometry(Part.ArcOfCircle(Part.Circle(V(15.5, -15.5, 0), V(0, 0, 1), 4.5), math.radians(-90), math.radians(0)), False)
sketch3.addGeometry(Part.LineSegment(V(20, -15.5, 0), V(20, -5, 0)), False)
sketch3.addGeometry(Part.LineSegment(V(20, -5, 0), V(19, -5, 0)), False)
sketch3.addGeometry(Part.LineSegment(V(19, -5, 0), V(19, -4, 0)), False)
sketch3.addGeometry(Part.LineSegment(V(19, -4, 0), V(15.5, -4, 0)), False)
sketch3.addGeometry(Part.LineSegment(V(15.5, -4, 0), V(15.5, -6.3, 0)), False)
sketch3.addGeometry(Part.LineSegment(V(15.5, -6.3, 0), V(18.2, -6.3, 0)), False)
sketch3.addGeometry(Part.LineSegment(V(18.2, -6.3, 0), V(18.2, -10.19, 0)), False)
sketch3.addGeometry(Part.LineSegment(V(18.2, -10.19, 0), V(11.69, -10.19, 0)), False)
sketch3.addGeometry(Part.LineSegment(V(11.69, -10.19, 0), V(5.5, -4, 0)), False)
sketch3.addGeometry(Part.LineSegment(V(5.5, -4, 0), V(5.5, 0, 0)), False)
sketch3.addGeometry(Part.LineSegment(V(18.5, -11.69, 0), V(18.5, -15.5, 0)), False)
sketch3.addGeometry(Part.ArcOfCircle(Part.Circle(V(15.5, -15.5, 0), V(0, 0, 1), 3), math.radians(-90), math.radians(0)), False)
sketch3.addGeometry(Part.LineSegment(V(15.5, -18.5, 0), V(11.69, -18.5, 0)), False)
sketch3.addGeometry(Part.LineSegment(V(11.69, -18.5, 0), V(11.69, -11.69, 0)), False)
sketch3.addGeometry(Part.LineSegment(V(11.69, -11.69, 0), V(18.5, -11.69, 0)), False)
sketch3.addConstraint(Sketcher.Constraint("Coincident", 0, 2, 1, 2))
sketch3.addConstraint(Sketcher.Constraint("Coincident", 1, 1, 2, 1))
sketch3.addConstraint(Sketcher.Constraint("Coincident", 2, 2, 3, 1))
sketch3.addConstraint(Sketcher.Constraint("Coincident", 3, 2, 4, 1))
sketch3.addConstraint(Sketcher.Constraint("Coincident", 4, 2, 5, 1))
sketch3.addConstraint(Sketcher.Constraint("Coincident", 5, 2, 6, 1))
sketch3.addConstraint(Sketcher.Constraint("Coincident", 6, 2, 7, 1))
sketch3.addConstraint(Sketcher.Constraint("Coincident", 7, 2, 8, 1))
sketch3.addConstraint(Sketcher.Constraint("Coincident", 8, 2, 9, 1))
sketch3.addConstraint(Sketcher.Constraint("Coincident", 9, 2, 10, 1))
sketch3.addConstraint(Sketcher.Constraint("Coincident", 10, 2, 11, 1))
sketch3.addConstraint(Sketcher.Constraint("Coincident", 11, 2, 12, 1))
sketch3.addConstraint(Sketcher.Constraint("Tangent", 12, 2, 13, 1))
sketch3.addConstraint(Sketcher.Constraint("Tangent", 13, 2, 14, 1))
sketch3.addConstraint(Sketcher.Constraint("Coincident", 14, 2, 15, 1))
sketch3.addConstraint(Sketcher.Constraint("Coincident", 15, 2, 16, 1))
sketch3.addConstraint(Sketcher.Constraint("Coincident", 16, 2, 17, 1))
sketch3.addConstraint(Sketcher.Constraint("Coincident", 17, 2, 18, 1))
sketch3.addConstraint(Sketcher.Constraint("Coincident", 18, 2, 19, 1))
sketch3.addConstraint(Sketcher.Constraint("Coincident", 19, 2, 20, 1))
sketch3.addConstraint(Sketcher.Constraint("Coincident", 20, 2, 21, 1))
sketch3.addConstraint(Sketcher.Constraint("Coincident", 21, 2, 22, 1))
sketch3.addConstraint(Sketcher.Constraint("Coincident", 22, 2, 23, 1))
sketch3.addConstraint(Sketcher.Constraint("Coincident", 23, 2, 0, 1))
sketch3.addConstraint(Sketcher.Constraint("Tangent", 24, 2, 25, 2))
sketch3.addConstraint(Sketcher.Constraint("Tangent", 25, 1, 26, 1))
sketch3.addConstraint(Sketcher.Constraint("Coincident", 26, 2, 27, 1))
sketch3.addConstraint(Sketcher.Constraint("Coincident", 27, 2, 28, 1))
sketch3.addConstraint(Sketcher.Constraint("Coincident", 28, 2, 24, 1))
sketch3.addConstraint(Sketcher.Constraint("Horizontal", 0))
sketch3.addConstraint(Sketcher.Constraint("Vertical", 2))
sketch3.addConstraint(Sketcher.Constraint("Horizontal", 3))
sketch3.addConstraint(Sketcher.Constraint("Vertical", 5))
sketch3.addConstraint(Sketcher.Constraint("Horizontal", 6))
sketch3.addConstraint(Sketcher.Constraint("Vertical", 7))
sketch3.addConstraint(Sketcher.Constraint("Horizontal", 8))
sketch3.addConstraint(Sketcher.Constraint("Vertical", 9))
sketch3.addConstraint(Sketcher.Constraint("Horizontal", 10))
sketch3.addConstraint(Sketcher.Constraint("Vertical", 11))
sketch3.addConstraint(Sketcher.Constraint("Horizontal", 12))
sketch3.addConstraint(Sketcher.Constraint("Vertical", 14))
sketch3.addConstraint(Sketcher.Constraint("Horizontal", 15))
sketch3.addConstraint(Sketcher.Constraint("Vertical", 16))
sketch3.addConstraint(Sketcher.Constraint("Horizontal", 17))
sketch3.addConstraint(Sketcher.Constraint("Vertical", 18))
sketch3.addConstraint(Sketcher.Constraint("Horizontal", 19))
sketch3.addConstraint(Sketcher.Constraint("Vertical", 20))
sketch3.addConstraint(Sketcher.Constraint("Horizontal", 21))
sketch3.addConstraint(Sketcher.Constraint("Vertical", 23))
sketch3.addConstraint(Sketcher.Constraint("Vertical", 24))
sketch3.addConstraint(Sketcher.Constraint("Horizontal", 26))
sketch3.addConstraint(Sketcher.Constraint("Vertical", 27))
sketch3.addConstraint(Sketcher.Constraint("Horizontal", 28))
sketch3.addConstraint(Sketcher.Constraint("Coincident", 1, 3, -1, 1))
sketch3.addConstraint(Sketcher.Constraint("Coincident", 25, 3, 13, 3))
sketch3.addConstraint(Sketcher.Constraint("PointOnObject", 0, 2, -1))
sketch3.addConstraint(Sketcher.Constraint("PointOnObject", 1, 1, -2))
sketch3.addConstraint(Sketcher.Constraint("Parallel", 4, 22))
sketch3.addConstraint(Sketcher.Constraint("Horizontal", 25, 3, 7, 2))
sketch3.addConstraint(Sketcher.Constraint("Horizontal", 17, 2, 22, 2))
sketch3.addConstraint(Sketcher.Constraint("Horizontal", 4, 2, 27, 2))
sketch3.addConstraint(Sketcher.Constraint("Vertical", 3, 2, 8, 2))
sketch3.addConstraint(Sketcher.Constraint("Vertical", 12, 2, 17, 2))
sketch3.addConstraint(Sketcher.Constraint("Vertical", 21, 2, 26, 2))
sketch3.addConstraint(Sketcher.Constraint("Equal", 10, 15))
sketch3.addConstraint(Sketcher.Constraint("Equal", 0, 2))
sketch3.addConstraint(Sketcher.Constraint("Equal", 21, 5))
sketch3.addConstraint(Sketcher.Constraint("Equal", 19, 7))
sketch3.addConstraint(Sketcher.Constraint("Equal", 17, 9))
sketch3.addConstraint(Sketcher.Constraint("Equal", 12, 14))
sketch3.addConstraint(Sketcher.Constraint("Equal", 11, 16))
sketch3.addConstraint(Sketcher.Constraint("Equal", 8, 18))
sketch3.addConstraint(Sketcher.Constraint("Equal", 6, 20))
sketch3.addConstraint(Sketcher.Constraint("Equal", 3, 23))
sketch3.addConstraint(Sketcher.Constraint("Radius", 25, 3.0))
sketch3.addConstraint(Sketcher.Constraint("Radius", 1, 3.4))
sketch3.addConstraint(Sketcher.Constraint("Radius", 13, 4.5))
sketch3.addConstraint(Sketcher.Constraint("DistanceX", 3, 1, 3, 2, 4.0))
sketch3.addConstraint(Sketcher.Constraint("DistanceX", 10, 1, 10, 2, 1.0))
sketch3.addConstraint(Sketcher.Constraint("DistanceX", 0, 2, 0, 1, 2.1))
sketch3.addConstraint(Sketcher.Constraint("DistanceX", 8, 2, 8, 1, 2.3))
sketch3.addConstraint(Sketcher.Constraint("DistanceX", 12, 1, 12, 2, 10.5))
sketch3.addConstraint(Sketcher.Constraint("DistanceX", 19, 1, 19, 2, 2.7))
sketch3.addConstraint(Sketcher.Constraint("DistanceX", 6, 2, 6, 1, 3.89))
pad3 = body.newObject("PartDesign::Pad", "Pad002")
pad3.Profile = sketch3
pad3.Length = 460

doc.recompute()
